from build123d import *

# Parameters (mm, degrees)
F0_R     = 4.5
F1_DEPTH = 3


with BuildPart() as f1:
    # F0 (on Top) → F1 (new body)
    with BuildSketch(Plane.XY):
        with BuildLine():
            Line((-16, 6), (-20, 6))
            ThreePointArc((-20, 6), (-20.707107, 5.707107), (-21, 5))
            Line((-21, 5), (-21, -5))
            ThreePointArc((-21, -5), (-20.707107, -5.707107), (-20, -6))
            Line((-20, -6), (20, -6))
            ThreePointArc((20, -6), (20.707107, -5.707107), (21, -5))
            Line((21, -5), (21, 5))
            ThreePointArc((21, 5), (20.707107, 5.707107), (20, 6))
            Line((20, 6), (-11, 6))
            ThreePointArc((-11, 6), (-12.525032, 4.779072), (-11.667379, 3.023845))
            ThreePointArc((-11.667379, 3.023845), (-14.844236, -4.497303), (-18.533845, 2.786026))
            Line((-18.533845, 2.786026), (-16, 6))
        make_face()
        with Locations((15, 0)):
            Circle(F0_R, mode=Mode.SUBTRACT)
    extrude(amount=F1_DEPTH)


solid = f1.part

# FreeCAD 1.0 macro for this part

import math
import FreeCAD as App
import Part
import Sketcher

V = App.Vector

doc = App.newDocument("Part")
body = doc.addObject("PartDesign::Body", "Body")

sketch1 = body.newObject("Sketcher::SketchObject", "Sketch")
sketch1.AttachmentSupport = (doc.getObject("XY_Plane"), [""])
sketch1.MapMode = "FlatFace"
sketch1.addGeometry(Part.LineSegment(V(-16, 6, 0), V(-20, 6, 0)), False)
sketch1.addGeometry(Part.ArcOfCircle(Part.Circle(V(-20.000001, 5.000001, 0), V(0, 0, 1), 0.999999), math.radians(89.999957), math.radians(180.000043)), False)
sketch1.addGeometry(Part.LineSegment(V(-21, 5, 0), V(-21, -5, 0)), False)
sketch1.addGeometry(Part.ArcOfCircle(Part.Circle(V(-20.000001, -5.000001, 0), V(0, 0, 1), 0.999999), math.radians(179.999957), math.radians(270.000043)), False)
sketch1.addGeometry(Part.LineSegment(V(-20, -6, 0), V(20, -6, 0)), False)
sketch1.addGeometry(Part.ArcOfCircle(Part.Circle(V(20.000001, -5.000001, 0), V(0, 0, 1), 0.999999), math.radians(-90.000043), math.radians(0.000043)), False)
sketch1.addGeometry(Part.LineSegment(V(21, -5, 0), V(21, 5, 0)), False)
sketch1.addGeometry(Part.ArcOfCircle(Part.Circle(V(20.000001, 5.000001, 0), V(0, 0, 1), 0.999999), math.radians(-0.000043), math.radians(90.000043)), False)
sketch1.addGeometry(Part.LineSegment(V(20, 6, 0), V(-11, 6, 0)), False)
sketch1.addGeometry(Part.ArcOfCircle(Part.Circle(V(-11, 4.437095, 0), V(0, 0, 1), 1.562905), math.radians(90.000007), math.radians(244.721913)), False)
sketch1.addGeometry(Part.ArcOfCircle(Part.Circle(V(-15, 0, 0), V(0, 0, 1), 4.5), math.radians(141.748331), math.radians(402.218944)), False)
sketch1.addGeometry(Part.LineSegment(V(-18.533845, 2.786026, 0), V(-16, 6, 0)), False)
sketch1.addGeometry(Part.Circle(V(15, 0, 0), V(0, 0, 1), 4.5), False)
sketch1.addConstraint(Sketcher.Constraint("Tangent", 0, 2, 1, 1))
sketch1.addConstraint(Sketcher.Constraint("Tangent", 1, 2, 2, 1))
sketch1.addConstraint(Sketcher.Constraint("Tangent", 2, 2, 3, 1))
sketch1.addConstraint(Sketcher.Constraint("Tangent", 3, 2, 4, 1))
sketch1.addConstraint(Sketcher.Constraint("Tangent", 4, 2, 5, 1))
sketch1.addConstraint(Sketcher.Constraint("Tangent", 5, 2, 6, 1))
sketch1.addConstraint(Sketcher.Constraint("Tangent", 6, 2, 7, 1))
sketch1.addConstraint(Sketcher.Constraint("Tangent", 7, 2, 8, 1))
sketch1.addConstraint(Sketcher.Constraint("Tangent", 8, 2, 9, 1))
sketch1.addConstraint(Sketcher.Constraint("Coincident", 9, 2, 10, 2))
sketch1.addConstraint(Sketcher.Constraint("Tangent", 10, 1, 11, 1))
sketch1.addConstraint(Sketcher.Constraint("Coincident", 11, 2, 0, 1))
sketch1.addConstraint(Sketcher.Constraint("Horizontal", 0))
sketch1.addConstraint(Sketcher.Constraint("Vertical", 2))
sketch1.addConstraint(Sketcher.Constraint("Horizontal", 4))
sketch1.addConstraint(Sketcher.Constraint("Vertical", 6))
sketch1.addConstraint(Sketcher.Constraint("Horizontal", 8))
sketch1.addConstraint(Sketcher.Constraint("Equal", 1, 3))
sketch1.addConstraint(Sketcher.Constraint("Equal", 3, 5))
sketch1.addConstraint(Sketcher.Constraint("Equal", 5, 7))
sketch1.addConstraint(Sketcher.Constraint("Equal", 10, 12))
sketch1.addConstraint(Sketcher.Constraint("Symmetric", 1, 3, 5, 3, -1, 1))
sketch1.addConstraint(Sketcher.Constraint("Symmetric", 10, 3, 12, 3, -1, 1))
sketch1.addConstraint(Sketcher.Constraint("PointOnObject", 10, 3, -1))
sketch1.addConstraint(Sketcher.Constraint("Horizontal", 1, 3, 7, 3))
sketch1.addConstraint(Sketcher.Constraint("Diameter", 12, 9.0))
sketch1.addConstraint(Sketcher.Constraint("Radius", 1, 0.999999))
sketch1.addConstraint(Sketcher.Constraint("DistanceX", 0, 2, 0, 1, 4.0))
sketch1.addConstraint(Sketcher.Constraint("DistanceX", 4, 1, 4, 2, 40.0))
sketch1.addConstraint(Sketcher.Constraint("DistanceX", 8, 2, 8, 1, 31.0))
sketch1.addConstraint(Sketcher.Constraint("DistanceY", 2, 2, 2, 1, 10.0))
sketch1.addConstraint(Sketcher.Constraint("DistanceX", 10, 3, -1, 1, 15.0))
sketch1.addConstraint(Sketcher.Constraint("Radius", 9, 1.562905))
pad1 = body.newObject("PartDesign::Pad", "Pad")
pad1.Profile = sketch1
pad1.Length = 3

doc.recompute()
